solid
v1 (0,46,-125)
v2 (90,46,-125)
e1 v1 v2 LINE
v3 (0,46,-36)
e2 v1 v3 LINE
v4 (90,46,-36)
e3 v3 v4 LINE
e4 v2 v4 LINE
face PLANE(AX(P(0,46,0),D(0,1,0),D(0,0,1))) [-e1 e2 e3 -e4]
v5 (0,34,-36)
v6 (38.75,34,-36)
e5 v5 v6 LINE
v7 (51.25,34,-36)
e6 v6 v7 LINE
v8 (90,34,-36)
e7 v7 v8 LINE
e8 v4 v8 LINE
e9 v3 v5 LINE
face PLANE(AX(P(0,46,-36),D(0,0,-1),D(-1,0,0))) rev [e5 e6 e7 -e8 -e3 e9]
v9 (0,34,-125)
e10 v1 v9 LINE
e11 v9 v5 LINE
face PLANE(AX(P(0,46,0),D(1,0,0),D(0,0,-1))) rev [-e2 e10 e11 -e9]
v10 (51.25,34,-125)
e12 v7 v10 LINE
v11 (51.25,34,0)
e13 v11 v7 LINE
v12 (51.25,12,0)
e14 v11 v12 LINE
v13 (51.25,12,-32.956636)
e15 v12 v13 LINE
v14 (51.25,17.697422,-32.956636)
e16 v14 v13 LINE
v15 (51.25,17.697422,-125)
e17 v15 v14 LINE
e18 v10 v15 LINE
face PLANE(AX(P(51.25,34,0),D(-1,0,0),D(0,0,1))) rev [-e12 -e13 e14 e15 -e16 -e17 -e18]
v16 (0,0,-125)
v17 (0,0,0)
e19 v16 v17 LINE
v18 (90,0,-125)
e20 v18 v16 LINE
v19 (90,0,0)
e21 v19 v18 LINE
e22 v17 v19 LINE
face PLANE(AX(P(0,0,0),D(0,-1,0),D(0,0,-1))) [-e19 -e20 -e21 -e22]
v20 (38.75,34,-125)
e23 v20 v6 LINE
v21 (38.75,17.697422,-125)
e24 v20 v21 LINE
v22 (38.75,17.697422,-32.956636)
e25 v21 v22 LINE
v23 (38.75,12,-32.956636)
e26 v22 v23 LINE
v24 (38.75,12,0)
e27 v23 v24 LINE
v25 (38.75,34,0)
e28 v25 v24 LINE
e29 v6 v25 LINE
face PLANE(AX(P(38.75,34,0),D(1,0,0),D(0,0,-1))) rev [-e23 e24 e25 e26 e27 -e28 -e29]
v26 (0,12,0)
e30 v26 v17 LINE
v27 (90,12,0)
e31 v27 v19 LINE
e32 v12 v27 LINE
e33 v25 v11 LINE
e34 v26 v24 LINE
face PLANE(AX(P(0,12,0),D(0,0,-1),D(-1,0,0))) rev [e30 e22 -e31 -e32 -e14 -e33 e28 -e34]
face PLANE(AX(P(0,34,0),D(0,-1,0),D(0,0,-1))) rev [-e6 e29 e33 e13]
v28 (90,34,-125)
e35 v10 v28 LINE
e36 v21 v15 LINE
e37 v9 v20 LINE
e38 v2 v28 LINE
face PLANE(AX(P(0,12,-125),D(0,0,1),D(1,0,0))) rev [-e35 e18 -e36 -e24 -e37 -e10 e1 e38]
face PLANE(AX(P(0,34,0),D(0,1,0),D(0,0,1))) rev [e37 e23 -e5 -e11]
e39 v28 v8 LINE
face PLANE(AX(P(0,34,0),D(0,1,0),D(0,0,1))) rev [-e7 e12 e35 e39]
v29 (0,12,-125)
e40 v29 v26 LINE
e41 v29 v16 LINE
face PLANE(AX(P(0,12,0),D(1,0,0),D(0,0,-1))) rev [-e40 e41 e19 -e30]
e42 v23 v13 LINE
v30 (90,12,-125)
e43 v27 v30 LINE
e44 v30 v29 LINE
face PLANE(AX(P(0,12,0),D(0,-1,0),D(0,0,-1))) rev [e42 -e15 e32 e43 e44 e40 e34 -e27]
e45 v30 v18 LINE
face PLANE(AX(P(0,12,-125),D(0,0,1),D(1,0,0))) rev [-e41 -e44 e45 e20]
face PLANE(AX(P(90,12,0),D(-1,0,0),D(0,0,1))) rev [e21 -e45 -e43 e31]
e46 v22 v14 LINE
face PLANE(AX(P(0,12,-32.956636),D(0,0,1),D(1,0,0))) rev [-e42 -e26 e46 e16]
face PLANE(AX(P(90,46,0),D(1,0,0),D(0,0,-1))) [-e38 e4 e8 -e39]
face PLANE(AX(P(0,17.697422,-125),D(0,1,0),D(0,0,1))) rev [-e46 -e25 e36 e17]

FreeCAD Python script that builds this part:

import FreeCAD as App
import Part
import Sketcher
from FreeCAD import Vector
Q = App.Units.Quantity


def add_polygon(sketch, points):
    """Adds a closed chain of lines whose ends are joined by coincident constraints."""
    first, n = sketch.GeometryCount, len(points)
    for a, b in zip(points, points[1:] + points[:1]):
        sketch.addGeometry(Part.LineSegment(App.Vector(*a, 0), App.Vector(*b, 0)), False)
    for i in range(n):
        sketch.addConstraint(Sketcher.Constraint("Coincident", first + i, 2, first + (i + 1) % n, 1))

doc = App.newDocument("Part")
body = doc.addObject("PartDesign::Body", "Body")

# Sketch on XZ plane
sketch1 = body.newObject("Sketcher::SketchObject", "Sketch")
sketch1.AttachmentSupport = (doc.getObject("XZ_Plane"), [""])
sketch1.MapMode = "FlatFace"
add_polygon(sketch1, [(0, -125), (0, 0), (90, 0), (90, -125)])  # lines 0-3
sketch1.addConstraint(Sketcher.Constraint("Vertical", 0))
sketch1.addConstraint(Sketcher.Constraint("Horizontal", 1))
sketch1.addConstraint(Sketcher.Constraint("Vertical", 2))
sketch1.addConstraint(Sketcher.Constraint("Horizontal", 3))
sketch1.addConstraint(Sketcher.Constraint("Coincident", 0, 2, -1, 1))
sketch1.addConstraint(Sketcher.Constraint("DistanceX", 1, 1, 1, 2, Q("90 mm")))
sketch1.addConstraint(Sketcher.Constraint("DistanceY", 0, 1, 0, 2, Q("125 mm")))
pad1 = body.newObject("PartDesign::Pad", "Pad")
pad1.Profile = sketch1
pad1.Length = 12
pad1.Reversed = True

# Sketch on XZ plane
sketch2 = body.newObject("Sketcher::SketchObject", "Sketch001")
sketch2.AttachmentSupport = (doc.getObject("XZ_Plane"), [""])
sketch2.MapMode = "FlatFace"
sketch2.AttachmentOffset = App.Placement(Vector(0, 0, -12), App.Rotation())
add_polygon(sketch2, [(39, -125), (39, 0), (51, 0), (51, -125)])  # lines 0-3
sketch2.addConstraint(Sketcher.Constraint("Vertical", 0))
sketch2.addConstraint(Sketcher.Constraint("Horizontal", 1))
sketch2.addConstraint(Sketcher.Constraint("Vertical", 2))
sketch2.addConstraint(Sketcher.Constraint("Horizontal", 3))
sketch2.addConstraint(Sketcher.Constraint("PointOnObject", 0, 2, -1))
sketch2.addConstraint(Sketcher.Constraint("DistanceY", 0, 1, 0, 2, Q("125 mm")))
sketch2.addConstraint(Sketcher.Constraint("DistanceX", 1, 1, 1, 2, Q("12.5 mm")))
sketch2.addConstraint(Sketcher.Constraint("DistanceX", -1, 1, 0, 2, Q("38.75 mm")))
pad2 = body.newObject("PartDesign::Pad", "Pad001")
pad2.Profile = sketch2
pad2.Length = 22
pad2.Reversed = True

# Sketch on XZ plane
sketch3 = body.newObject("Sketcher::SketchObject", "Sketch002")
sketch3.AttachmentSupport = (doc.getObject("XZ_Plane"), [""])
sketch3.MapMode = "FlatFace"
sketch3.AttachmentOffset = App.Placement(Vector(0, 0, -34), App.Rotation())
add_polygon(sketch3, [(90, -36), (90, -125), (0, -125), (0, -36)])  # lines 0-3
sketch3.addConstraint(Sketcher.Constraint("Vertical", 0))
sketch3.addConstraint(Sketcher.Constraint("Horizontal", 1))
sketch3.addConstraint(Sketcher.Constraint("Vertical", 2))
sketch3.addConstraint(Sketcher.Constraint("Horizontal", 3))
sketch3.addConstraint(Sketcher.Constraint("PointOnObject", 1, 2, -2))
sketch3.addConstraint(Sketcher.Constraint("DistanceX", 1, 2, 1, 1, Q("90 mm")))
sketch3.addConstraint(Sketcher.Constraint("DistanceY", 0, 2, 0, 1, Q("89 mm")))
sketch3.addConstraint(Sketcher.Constraint("DistanceY", 0, 2, -1, 1, Q("125 mm")))
pad3 = body.newObject("PartDesign::Pad", "Pad002")
pad3.Profile = sketch3
pad3.Length = 12
pad3.Reversed = True

# Sketch on YZ plane
sketch4 = body.newObject("Sketcher::SketchObject", "Sketch003")
sketch4.AttachmentSupport = (doc.getObject("YZ_Plane"), [""])
sketch4.MapMode = "FlatFace"
sketch4.AttachmentOffset = App.Placement(Vector(0, 0, 51.25), App.Rotation())
add_polygon(sketch4, [(18, -33), (12, -33), (12, -125), (18, -125)])  # lines 0-3
sketch4.addConstraint(Sketcher.Constraint("Horizontal", 0))
sketch4.addConstraint(Sketcher.Constraint("Vertical", 1))
sketch4.addConstraint(Sketcher.Constraint("Horizontal", 2))
sketch4.addConstraint(Sketcher.Constraint("Vertical", 3))
sketch4.addConstraint(Sketcher.Constraint("DistanceX", -1, 1, 0, 2, Q("12 mm")))
sketch4.addConstraint(Sketcher.Constraint("DistanceY", 1, 2, -1, 1, Q("125 mm")))
sketch4.addConstraint(Sketcher.Constraint("DistanceX", 0, 2, 0, 1, Q("5.697422 mm")))
sketch4.addConstraint(Sketcher.Constraint("DistanceY", 1, 2, 1, 1, Q("92.043364 mm")))
pocket1 = body.newObject("PartDesign::Pocket", "Pocket")
pocket1.Profile = sketch4
pocket1.Type = "ThroughAll"

doc.recompute()
